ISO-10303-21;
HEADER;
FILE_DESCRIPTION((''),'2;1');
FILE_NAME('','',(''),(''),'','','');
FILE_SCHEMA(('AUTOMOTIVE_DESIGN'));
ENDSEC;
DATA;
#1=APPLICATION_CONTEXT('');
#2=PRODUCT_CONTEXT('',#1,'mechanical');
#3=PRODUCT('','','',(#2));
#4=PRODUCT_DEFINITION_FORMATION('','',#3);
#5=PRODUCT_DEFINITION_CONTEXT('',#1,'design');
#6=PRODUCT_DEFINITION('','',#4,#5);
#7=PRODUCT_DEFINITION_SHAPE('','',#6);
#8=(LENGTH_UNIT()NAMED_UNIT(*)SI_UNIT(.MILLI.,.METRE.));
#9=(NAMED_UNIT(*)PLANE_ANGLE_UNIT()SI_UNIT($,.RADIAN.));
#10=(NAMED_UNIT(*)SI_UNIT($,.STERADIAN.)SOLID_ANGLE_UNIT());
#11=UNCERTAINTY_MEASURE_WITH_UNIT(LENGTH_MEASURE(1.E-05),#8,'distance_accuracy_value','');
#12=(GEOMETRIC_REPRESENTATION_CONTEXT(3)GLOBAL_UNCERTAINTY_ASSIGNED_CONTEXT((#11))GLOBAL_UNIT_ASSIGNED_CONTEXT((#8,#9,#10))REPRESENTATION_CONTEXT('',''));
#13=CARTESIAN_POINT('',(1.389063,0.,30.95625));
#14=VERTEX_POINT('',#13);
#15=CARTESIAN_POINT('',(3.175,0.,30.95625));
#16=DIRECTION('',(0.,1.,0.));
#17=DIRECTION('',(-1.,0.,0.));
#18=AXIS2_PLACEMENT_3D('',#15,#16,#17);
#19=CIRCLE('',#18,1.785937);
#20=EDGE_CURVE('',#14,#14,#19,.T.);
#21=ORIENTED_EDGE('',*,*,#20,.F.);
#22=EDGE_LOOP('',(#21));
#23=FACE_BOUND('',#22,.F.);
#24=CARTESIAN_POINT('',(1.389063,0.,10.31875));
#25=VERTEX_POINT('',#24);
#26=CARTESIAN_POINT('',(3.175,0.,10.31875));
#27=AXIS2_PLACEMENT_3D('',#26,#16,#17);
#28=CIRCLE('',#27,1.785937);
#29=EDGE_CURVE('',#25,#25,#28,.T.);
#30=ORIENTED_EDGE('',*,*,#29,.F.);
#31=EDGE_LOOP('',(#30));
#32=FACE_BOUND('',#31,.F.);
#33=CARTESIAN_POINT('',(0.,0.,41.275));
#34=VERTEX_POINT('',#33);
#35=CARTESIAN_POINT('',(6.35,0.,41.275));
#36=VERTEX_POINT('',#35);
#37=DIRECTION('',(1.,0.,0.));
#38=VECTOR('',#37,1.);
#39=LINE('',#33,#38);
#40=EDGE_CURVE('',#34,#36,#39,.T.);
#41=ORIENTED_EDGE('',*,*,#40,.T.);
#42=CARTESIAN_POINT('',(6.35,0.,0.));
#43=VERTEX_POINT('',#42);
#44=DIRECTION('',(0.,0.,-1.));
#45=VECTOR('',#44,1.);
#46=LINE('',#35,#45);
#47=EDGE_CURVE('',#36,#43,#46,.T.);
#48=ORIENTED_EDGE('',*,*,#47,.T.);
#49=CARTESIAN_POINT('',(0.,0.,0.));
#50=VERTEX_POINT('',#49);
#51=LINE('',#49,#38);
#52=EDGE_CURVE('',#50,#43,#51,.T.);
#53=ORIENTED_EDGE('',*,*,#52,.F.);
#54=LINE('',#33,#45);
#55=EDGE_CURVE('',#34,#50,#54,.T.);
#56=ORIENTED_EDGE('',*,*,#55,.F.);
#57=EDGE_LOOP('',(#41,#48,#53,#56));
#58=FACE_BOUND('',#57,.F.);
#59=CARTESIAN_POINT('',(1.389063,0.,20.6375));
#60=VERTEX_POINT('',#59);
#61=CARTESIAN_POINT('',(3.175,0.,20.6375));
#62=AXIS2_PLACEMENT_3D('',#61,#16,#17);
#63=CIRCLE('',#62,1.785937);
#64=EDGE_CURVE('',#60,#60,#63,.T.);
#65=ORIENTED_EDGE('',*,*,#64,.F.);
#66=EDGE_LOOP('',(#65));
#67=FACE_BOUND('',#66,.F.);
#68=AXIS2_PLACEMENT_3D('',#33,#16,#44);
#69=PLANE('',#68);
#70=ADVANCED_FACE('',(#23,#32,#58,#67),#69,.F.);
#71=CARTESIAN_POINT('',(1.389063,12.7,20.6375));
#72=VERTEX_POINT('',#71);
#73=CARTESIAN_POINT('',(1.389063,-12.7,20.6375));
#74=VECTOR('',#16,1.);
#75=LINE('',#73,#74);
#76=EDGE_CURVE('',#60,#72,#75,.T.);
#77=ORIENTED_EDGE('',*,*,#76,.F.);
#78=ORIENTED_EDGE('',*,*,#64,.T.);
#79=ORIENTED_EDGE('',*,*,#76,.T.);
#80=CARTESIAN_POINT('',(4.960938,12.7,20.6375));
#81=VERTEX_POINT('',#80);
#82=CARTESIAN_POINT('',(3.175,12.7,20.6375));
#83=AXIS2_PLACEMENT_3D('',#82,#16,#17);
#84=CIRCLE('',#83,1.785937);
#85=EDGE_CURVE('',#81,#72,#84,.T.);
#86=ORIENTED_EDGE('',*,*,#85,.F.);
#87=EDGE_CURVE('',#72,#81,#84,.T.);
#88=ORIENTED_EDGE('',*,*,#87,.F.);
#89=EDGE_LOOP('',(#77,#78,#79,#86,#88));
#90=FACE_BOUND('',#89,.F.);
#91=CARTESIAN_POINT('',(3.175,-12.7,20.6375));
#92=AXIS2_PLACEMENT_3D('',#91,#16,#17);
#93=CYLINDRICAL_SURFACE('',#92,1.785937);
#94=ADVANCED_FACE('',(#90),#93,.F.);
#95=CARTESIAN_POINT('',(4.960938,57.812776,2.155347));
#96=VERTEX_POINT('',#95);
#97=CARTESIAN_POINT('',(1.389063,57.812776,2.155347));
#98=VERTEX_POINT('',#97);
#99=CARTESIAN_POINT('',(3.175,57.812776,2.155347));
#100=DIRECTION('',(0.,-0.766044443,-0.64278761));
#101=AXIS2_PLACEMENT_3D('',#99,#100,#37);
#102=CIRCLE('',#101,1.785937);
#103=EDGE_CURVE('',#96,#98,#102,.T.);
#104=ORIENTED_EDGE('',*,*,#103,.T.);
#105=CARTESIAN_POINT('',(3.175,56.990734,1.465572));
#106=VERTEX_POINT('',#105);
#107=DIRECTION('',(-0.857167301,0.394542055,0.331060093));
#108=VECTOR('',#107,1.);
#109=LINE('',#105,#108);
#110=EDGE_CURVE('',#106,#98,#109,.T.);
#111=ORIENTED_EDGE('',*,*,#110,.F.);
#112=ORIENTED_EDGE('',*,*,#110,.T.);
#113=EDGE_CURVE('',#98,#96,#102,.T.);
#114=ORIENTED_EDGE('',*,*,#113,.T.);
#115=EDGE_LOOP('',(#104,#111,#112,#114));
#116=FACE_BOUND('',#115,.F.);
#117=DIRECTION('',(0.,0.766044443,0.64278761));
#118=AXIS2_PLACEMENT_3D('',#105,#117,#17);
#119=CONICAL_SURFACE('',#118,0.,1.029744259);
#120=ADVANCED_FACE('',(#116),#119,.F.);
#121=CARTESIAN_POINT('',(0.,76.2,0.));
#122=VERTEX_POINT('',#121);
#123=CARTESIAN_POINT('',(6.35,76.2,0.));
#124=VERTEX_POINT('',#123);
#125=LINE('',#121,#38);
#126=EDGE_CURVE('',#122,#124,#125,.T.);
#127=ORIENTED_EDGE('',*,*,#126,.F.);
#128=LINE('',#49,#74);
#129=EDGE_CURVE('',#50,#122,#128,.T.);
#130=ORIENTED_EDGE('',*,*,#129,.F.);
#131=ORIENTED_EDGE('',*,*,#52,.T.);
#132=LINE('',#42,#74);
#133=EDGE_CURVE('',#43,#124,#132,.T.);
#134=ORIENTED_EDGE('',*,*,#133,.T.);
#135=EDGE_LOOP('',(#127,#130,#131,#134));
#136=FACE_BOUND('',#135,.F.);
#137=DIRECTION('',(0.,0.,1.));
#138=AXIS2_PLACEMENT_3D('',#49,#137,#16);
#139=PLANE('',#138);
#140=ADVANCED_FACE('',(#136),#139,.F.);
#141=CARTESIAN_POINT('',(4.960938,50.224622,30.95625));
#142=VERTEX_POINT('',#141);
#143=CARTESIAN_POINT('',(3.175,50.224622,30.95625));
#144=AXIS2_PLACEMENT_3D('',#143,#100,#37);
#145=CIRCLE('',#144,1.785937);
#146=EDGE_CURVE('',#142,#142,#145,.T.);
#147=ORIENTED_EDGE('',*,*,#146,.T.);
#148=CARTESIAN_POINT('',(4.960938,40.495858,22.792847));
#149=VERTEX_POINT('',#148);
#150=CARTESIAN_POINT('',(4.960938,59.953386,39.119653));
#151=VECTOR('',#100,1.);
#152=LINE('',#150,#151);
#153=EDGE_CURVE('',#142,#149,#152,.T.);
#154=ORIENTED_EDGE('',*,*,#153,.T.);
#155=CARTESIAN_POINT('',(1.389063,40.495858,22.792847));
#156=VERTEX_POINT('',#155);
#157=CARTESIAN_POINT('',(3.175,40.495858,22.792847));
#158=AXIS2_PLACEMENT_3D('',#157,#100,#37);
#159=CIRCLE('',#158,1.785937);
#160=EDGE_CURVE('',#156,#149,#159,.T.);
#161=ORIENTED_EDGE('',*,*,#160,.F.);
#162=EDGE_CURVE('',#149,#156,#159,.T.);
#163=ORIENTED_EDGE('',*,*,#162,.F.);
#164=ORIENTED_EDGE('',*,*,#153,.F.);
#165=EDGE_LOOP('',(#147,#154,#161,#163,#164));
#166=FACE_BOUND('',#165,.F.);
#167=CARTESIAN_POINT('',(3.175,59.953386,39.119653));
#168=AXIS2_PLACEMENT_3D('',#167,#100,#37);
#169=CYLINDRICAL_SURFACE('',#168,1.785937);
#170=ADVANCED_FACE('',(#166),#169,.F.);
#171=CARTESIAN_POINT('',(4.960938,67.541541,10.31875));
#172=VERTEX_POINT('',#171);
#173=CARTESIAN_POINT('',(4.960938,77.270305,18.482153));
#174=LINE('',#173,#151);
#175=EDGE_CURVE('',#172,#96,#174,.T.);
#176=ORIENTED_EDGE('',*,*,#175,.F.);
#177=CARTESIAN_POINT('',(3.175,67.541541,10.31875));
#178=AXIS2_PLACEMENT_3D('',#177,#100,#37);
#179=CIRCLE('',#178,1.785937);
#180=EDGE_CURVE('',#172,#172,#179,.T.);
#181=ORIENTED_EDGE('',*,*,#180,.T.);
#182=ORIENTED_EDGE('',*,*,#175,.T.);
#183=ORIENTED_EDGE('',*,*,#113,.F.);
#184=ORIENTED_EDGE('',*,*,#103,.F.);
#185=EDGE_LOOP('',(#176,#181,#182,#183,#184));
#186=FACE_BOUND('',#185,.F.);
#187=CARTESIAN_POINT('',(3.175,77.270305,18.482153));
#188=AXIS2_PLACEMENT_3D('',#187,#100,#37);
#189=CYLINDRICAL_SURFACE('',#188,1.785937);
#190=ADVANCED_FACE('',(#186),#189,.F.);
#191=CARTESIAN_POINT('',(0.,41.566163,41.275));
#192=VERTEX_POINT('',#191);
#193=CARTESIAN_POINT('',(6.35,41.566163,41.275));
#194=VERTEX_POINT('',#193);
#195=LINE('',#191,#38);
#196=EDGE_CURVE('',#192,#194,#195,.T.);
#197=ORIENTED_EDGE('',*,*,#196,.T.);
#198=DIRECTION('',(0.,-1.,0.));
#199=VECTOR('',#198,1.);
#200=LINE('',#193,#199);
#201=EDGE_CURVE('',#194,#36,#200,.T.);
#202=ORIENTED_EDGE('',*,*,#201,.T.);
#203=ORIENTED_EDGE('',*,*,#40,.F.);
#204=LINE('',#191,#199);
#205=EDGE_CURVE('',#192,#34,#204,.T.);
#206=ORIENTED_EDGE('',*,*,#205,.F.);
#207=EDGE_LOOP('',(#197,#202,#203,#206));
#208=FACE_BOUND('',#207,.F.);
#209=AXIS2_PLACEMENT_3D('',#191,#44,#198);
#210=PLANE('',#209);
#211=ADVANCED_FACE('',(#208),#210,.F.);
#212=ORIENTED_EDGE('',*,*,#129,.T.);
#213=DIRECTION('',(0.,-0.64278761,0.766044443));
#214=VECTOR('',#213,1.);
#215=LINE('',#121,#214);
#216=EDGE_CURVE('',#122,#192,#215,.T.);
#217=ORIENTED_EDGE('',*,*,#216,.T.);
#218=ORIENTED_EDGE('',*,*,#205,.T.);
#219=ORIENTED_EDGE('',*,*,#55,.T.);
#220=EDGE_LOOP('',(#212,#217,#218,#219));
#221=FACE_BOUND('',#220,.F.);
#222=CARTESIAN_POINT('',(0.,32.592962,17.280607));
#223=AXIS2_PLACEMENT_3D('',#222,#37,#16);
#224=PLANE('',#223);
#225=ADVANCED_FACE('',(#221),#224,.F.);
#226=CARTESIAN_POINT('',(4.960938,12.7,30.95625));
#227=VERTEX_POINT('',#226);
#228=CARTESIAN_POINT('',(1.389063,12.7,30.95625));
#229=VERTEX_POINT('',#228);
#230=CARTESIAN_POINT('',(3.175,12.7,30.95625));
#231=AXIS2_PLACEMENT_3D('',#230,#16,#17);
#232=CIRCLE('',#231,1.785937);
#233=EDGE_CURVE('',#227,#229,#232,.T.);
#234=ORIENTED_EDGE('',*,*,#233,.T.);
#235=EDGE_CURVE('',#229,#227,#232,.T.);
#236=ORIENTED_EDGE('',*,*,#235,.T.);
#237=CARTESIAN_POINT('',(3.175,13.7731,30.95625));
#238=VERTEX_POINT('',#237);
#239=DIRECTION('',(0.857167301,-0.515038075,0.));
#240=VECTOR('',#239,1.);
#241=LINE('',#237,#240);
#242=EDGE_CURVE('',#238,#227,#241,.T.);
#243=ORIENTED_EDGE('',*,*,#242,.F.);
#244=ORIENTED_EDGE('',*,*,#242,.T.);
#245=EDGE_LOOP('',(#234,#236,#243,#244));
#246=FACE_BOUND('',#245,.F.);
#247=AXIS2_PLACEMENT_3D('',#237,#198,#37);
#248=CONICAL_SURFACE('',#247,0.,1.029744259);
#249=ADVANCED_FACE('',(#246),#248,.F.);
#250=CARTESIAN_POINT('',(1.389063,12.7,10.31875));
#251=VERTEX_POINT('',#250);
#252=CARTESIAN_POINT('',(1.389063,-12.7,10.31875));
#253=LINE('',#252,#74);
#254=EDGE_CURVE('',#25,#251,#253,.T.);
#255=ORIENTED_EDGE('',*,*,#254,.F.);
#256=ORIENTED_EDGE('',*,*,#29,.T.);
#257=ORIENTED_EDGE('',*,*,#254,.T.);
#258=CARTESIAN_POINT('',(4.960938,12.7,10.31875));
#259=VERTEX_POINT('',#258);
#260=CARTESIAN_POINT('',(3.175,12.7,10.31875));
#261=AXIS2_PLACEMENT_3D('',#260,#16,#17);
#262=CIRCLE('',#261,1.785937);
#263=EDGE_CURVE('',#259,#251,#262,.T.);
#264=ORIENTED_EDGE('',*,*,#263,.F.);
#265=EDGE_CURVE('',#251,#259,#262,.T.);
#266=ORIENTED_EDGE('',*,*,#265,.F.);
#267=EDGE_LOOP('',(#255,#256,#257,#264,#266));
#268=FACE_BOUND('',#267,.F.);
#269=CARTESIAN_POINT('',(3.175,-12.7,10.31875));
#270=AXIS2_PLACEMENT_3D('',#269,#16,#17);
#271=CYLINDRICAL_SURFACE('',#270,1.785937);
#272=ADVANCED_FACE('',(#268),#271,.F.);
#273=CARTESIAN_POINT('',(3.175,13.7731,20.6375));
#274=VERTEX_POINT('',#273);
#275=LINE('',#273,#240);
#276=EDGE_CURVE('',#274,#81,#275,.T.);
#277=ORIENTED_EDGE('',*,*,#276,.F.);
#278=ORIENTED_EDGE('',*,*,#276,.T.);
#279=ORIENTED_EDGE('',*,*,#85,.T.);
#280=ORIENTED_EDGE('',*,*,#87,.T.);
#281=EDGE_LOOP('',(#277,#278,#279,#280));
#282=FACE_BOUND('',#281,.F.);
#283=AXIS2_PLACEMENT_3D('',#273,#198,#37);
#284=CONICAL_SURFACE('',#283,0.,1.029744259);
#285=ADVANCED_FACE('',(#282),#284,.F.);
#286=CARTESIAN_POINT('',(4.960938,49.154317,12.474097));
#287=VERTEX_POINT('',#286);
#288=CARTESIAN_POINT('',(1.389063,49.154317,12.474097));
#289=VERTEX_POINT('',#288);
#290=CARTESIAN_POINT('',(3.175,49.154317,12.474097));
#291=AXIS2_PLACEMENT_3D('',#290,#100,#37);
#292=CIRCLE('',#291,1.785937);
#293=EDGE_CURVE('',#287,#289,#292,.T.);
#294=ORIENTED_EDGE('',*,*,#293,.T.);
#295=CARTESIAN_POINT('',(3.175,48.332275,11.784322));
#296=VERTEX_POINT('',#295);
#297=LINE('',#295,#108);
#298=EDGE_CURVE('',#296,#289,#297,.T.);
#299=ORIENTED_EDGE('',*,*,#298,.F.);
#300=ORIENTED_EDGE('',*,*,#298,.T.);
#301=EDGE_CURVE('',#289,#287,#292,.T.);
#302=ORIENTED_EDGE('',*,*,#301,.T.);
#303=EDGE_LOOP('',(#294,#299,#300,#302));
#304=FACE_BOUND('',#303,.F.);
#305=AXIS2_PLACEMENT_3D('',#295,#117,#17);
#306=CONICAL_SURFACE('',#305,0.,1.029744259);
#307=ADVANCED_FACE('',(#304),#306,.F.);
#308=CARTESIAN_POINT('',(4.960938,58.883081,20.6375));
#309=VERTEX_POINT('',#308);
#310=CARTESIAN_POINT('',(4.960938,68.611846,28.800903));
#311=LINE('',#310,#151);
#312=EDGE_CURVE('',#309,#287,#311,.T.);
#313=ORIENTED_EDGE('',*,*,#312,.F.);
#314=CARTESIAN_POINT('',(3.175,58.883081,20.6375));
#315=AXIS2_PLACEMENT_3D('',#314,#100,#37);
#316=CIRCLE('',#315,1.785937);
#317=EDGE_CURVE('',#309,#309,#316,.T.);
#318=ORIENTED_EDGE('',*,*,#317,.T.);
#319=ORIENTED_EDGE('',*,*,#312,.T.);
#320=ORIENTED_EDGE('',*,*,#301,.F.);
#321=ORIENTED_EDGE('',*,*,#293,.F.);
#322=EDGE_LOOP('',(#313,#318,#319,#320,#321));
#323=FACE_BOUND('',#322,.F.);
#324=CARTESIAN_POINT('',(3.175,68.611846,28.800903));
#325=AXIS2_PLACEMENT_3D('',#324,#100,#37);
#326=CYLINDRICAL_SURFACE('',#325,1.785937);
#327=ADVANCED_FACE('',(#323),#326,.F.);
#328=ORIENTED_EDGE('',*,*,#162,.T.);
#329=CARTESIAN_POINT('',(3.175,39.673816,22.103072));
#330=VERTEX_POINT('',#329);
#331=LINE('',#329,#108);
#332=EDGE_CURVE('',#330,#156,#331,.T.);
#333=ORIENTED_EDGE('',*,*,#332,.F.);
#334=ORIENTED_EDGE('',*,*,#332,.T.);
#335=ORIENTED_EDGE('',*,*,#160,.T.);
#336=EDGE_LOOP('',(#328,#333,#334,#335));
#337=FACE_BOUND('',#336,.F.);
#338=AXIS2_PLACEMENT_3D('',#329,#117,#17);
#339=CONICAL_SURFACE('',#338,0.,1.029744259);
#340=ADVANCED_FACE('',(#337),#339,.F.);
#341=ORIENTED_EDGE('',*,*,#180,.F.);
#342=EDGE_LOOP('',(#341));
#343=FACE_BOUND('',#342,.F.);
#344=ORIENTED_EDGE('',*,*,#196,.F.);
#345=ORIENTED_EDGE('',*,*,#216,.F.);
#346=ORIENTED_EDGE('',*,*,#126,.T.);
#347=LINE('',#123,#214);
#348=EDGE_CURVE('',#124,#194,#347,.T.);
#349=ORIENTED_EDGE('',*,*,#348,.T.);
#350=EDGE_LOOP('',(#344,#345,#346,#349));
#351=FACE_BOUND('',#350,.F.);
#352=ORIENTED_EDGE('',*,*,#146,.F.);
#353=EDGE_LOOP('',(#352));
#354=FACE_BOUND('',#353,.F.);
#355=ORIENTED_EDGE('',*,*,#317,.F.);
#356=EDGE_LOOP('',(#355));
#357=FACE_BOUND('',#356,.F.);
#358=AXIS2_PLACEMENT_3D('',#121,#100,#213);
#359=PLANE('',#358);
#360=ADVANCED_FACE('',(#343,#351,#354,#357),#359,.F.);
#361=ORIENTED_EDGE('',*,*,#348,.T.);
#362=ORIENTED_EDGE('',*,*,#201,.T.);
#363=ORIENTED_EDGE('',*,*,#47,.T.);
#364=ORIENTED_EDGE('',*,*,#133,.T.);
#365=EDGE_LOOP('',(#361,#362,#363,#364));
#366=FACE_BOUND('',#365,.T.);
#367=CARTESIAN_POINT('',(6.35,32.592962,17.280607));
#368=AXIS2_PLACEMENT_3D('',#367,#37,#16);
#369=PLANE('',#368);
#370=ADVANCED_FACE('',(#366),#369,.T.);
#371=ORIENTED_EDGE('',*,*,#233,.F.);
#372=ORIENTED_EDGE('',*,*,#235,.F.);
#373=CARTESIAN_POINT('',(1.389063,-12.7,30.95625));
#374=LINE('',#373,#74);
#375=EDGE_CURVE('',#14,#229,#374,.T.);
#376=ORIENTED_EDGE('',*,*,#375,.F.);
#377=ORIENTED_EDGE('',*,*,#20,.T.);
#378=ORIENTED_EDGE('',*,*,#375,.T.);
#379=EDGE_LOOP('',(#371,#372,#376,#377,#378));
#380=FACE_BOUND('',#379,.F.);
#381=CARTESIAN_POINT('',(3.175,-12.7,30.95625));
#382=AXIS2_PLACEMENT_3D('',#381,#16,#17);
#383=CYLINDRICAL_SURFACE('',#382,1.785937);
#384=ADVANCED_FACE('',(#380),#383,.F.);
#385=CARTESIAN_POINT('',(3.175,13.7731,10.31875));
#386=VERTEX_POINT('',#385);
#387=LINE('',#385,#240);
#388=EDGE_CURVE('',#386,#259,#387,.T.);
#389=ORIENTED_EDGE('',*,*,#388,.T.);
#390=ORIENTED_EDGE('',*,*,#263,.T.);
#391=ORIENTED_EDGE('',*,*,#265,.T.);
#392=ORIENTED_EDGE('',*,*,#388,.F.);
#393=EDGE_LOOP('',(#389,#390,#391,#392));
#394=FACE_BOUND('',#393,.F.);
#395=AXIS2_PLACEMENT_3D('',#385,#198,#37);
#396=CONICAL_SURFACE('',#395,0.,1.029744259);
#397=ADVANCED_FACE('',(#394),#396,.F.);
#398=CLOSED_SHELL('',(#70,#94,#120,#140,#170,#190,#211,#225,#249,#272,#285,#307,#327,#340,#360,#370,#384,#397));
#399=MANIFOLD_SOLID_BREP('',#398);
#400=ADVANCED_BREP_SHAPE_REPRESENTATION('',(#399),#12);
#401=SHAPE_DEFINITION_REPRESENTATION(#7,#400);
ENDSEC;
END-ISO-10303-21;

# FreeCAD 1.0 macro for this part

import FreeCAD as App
import Part
import Sketcher
from FreeCAD import Vector
Q = App.Units.Quantity

doc = App.newDocument("Part")
body = doc.addObject("PartDesign::Body", "Body")

sketch1 = doc.addObject("Sketcher::SketchObject", "Sketch")
body.addObject(sketch1)
sketch1.AttachmentSupport = (doc.YZ_Plane, [""])
sketch1.MapMode = "FlatFace"
sketch1.addGeometry([
    Part.LineSegment(Vector(0, 41, 0), Vector(0, 0, 0)),
    Part.LineSegment(Vector(0, 0, 0), Vector(76, 0, 0)),
    Part.LineSegment(Vector(76, 0, 0), Vector(42, 41, 0)),
    Part.LineSegment(Vector(42, 41, 0), Vector(0, 41, 0)),
], False)
sketch1.addConstraint([
    Sketcher.Constraint("Coincident", 0, 2, 1, 1),
    Sketcher.Constraint("Coincident", 1, 2, 2, 1),
    Sketcher.Constraint("Coincident", 2, 2, 3, 1),
    Sketcher.Constraint("Coincident", 3, 2, 0, 1),
    Sketcher.Constraint("Vertical", 0),
    Sketcher.Constraint("Horizontal", 1),
    Sketcher.Constraint("Horizontal", 3),
    Sketcher.Constraint("Coincident", 0, 2, -1, 1),
    Sketcher.Constraint("DistanceX", 1, 1, 1, 2, Q("3 in")),
    Sketcher.Constraint("Angle", 2, Q("130 deg")),
    Sketcher.Constraint("DistanceY", 0, 2, 0, 1, Q("1.625 in")),
])
pad1 = doc.addObject("PartDesign::Pad", "Pad")
body.addObject(pad1)
pad1.Profile = sketch1
pad1.Length = Q("0.25 in")

sketch2 = doc.addObject("Sketcher::SketchObject", "Sketch001")
body.addObject(sketch2)
sketch2.AttachmentSupport = (doc.XZ_Plane, [""])
sketch2.MapMode = "FlatFace"
sketch2.addGeometry([
    Part.Circle(Vector(3.2, 31, 0), Vector(0, 0, 1), 1.8),
    Part.Circle(Vector(3.2, 10.3, 0), Vector(0, 0, 1), 1.8),
    Part.Circle(Vector(3.2, 20.6, 0), Vector(0, 0, 1), 1.8),
], False)
sketch2.addConstraint([
    Sketcher.Constraint("Equal", 0, 1),
    Sketcher.Constraint("Equal", 1, 2),
    Sketcher.Constraint("Vertical", 0, 3, 1, 3),
    Sketcher.Constraint("Vertical", 1, 3, 2, 3),
    Sketcher.Constraint("Diameter", 0, Q("0.140625 in")),
    Sketcher.Constraint("DistanceX", -1, 1, 0, 3, Q("0.125 in")),
    Sketcher.Constraint("DistanceY", -1, 1, 0, 3, Q("1.21875 in")),
    Sketcher.Constraint("DistanceY", -1, 1, 1, 3, Q("0.40625 in")),
    Sketcher.Constraint("DistanceY", -1, 1, 2, 3, Q("0.8125 in")),
])
doc.recompute()
hole = doc.addObject("PartDesign::Hole", "Hole")
body.addObject(hole)
hole.Profile = sketch2
hole.ThreadType = "None"
hole.Diameter = Q("0.140625 in")
hole.DepthType = "Dimension"
hole.Depth = Q("0.5 in")
hole.DrillPoint = "Angled"
hole.DrillPointAngle = 118

sketch3 = doc.addObject("Sketcher::SketchObject", "Sketch002")
body.addObject(sketch3)
sketch3.Placement = App.Placement(Vector(0, 44.715996, 37.521175), App.Rotation(Vector(-1, 0, 0), Vector(0, -0.64278761, 0.766044443), Vector(0, 0.766044443, 0.64278761), "ZXY"))
sketch3.addGeometry([
    Part.Circle(Vector(-3.2, -8.6, 0), Vector(0, 0, 1), 1.8),
    Part.Circle(Vector(-3.2, -22, 0), Vector(0, 0, 1), 1.8),
    Part.Circle(Vector(-3.2, -35.5, 0), Vector(0, 0, 1), 1.8),
], False)
sketch3.addConstraint([
    Sketcher.Constraint("Equal", 0, 1),
    Sketcher.Constraint("Equal", 1, 2),
    Sketcher.Constraint("Vertical", 0, 3, 1, 3),
    Sketcher.Constraint("Vertical", 1, 3, 2, 3),
    Sketcher.Constraint("Diameter", 0, Q("0.140625 in")),
    Sketcher.Constraint("DistanceX", 0, 3, -1, 1, Q("0.125 in")),
    Sketcher.Constraint("DistanceY", 0, 3, -1, 1, 8.569901),
    Sketcher.Constraint("DistanceY", 1, 3, 0, 3, 13.470171),
    Sketcher.Constraint("DistanceY", 2, 3, 1, 3, 13.470171),
])
doc.recompute()
hole2 = doc.addObject("PartDesign::Hole", "Hole001")
body.addObject(hole2)
hole2.Profile = sketch3
hole2.ThreadType = "None"
hole2.Diameter = Q("0.140625 in")
hole2.DepthType = "Dimension"
hole2.Depth = Q("0.5 in")
hole2.DrillPoint = "Angled"
hole2.DrillPointAngle = 118

doc.recompute()
